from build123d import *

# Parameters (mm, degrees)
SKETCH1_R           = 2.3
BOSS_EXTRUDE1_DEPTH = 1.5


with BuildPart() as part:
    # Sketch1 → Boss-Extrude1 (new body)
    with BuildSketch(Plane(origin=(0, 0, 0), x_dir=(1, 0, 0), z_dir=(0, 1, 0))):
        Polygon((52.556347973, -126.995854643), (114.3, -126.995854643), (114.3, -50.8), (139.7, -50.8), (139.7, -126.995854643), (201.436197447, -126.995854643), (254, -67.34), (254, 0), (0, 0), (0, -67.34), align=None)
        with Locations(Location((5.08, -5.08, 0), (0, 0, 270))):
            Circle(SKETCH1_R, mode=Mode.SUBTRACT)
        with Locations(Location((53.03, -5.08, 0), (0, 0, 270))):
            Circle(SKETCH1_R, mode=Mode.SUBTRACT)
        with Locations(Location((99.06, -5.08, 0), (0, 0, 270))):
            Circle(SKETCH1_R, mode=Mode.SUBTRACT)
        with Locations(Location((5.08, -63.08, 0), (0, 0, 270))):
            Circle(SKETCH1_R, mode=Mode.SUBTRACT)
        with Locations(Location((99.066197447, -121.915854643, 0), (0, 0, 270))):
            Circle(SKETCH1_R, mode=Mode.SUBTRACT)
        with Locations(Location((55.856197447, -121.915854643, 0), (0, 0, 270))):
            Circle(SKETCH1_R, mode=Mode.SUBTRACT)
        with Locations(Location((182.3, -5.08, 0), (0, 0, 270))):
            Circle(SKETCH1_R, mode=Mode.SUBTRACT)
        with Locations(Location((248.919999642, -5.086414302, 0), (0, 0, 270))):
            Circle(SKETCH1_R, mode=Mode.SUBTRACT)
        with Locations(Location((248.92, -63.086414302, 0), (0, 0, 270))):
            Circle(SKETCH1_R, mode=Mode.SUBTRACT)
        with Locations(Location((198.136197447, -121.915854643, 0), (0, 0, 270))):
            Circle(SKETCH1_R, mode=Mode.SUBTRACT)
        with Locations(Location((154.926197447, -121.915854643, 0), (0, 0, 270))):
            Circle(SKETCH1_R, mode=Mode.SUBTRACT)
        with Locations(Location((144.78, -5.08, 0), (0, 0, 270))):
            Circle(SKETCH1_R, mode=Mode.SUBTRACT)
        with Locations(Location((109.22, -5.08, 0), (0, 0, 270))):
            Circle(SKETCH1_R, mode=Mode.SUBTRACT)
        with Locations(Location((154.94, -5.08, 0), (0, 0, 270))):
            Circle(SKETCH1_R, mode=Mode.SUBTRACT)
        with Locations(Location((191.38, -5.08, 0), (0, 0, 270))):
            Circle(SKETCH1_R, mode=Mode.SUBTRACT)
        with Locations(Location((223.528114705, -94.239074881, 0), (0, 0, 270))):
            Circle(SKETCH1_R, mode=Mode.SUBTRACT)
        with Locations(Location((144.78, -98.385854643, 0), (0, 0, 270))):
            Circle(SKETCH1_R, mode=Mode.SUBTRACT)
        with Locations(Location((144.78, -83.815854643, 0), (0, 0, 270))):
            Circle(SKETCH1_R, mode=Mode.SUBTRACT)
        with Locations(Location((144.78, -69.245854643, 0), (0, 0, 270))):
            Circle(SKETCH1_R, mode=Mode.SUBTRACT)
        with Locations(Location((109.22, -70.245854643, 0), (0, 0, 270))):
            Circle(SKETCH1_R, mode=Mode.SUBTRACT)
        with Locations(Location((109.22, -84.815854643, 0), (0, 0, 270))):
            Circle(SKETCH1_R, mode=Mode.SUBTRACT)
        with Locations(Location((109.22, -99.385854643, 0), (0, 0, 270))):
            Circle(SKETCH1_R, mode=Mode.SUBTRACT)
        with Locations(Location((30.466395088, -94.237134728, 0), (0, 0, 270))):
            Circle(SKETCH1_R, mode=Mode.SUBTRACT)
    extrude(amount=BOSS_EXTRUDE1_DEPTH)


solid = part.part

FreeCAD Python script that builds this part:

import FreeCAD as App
import Part
import Sketcher
from FreeCAD import Vector


def add_polygon(sketch, points):
    """Adds a closed chain of lines whose ends are joined by coincident constraints."""
    first, n = sketch.GeometryCount, len(points)
    for a, b in zip(points, points[1:] + points[:1]):
        sketch.addGeometry(Part.LineSegment(App.Vector(*a, 0), App.Vector(*b, 0)), False)
    for i in range(n):
        sketch.addConstraint(Sketcher.Constraint("Coincident", first + i, 2, first + (i + 1) % n, 1))

doc = App.newDocument("Part")
body = doc.addObject("PartDesign::Body", "Body")

# Sketch on XZ plane
sketch1 = doc.addObject("Sketcher::SketchObject", "Sketch")
body.addObject(sketch1)
sketch1.AttachmentSupport = (doc.XZ_Plane, [""])
sketch1.MapMode = "FlatFace"
add_polygon(sketch1, [(52.6, 127), (114.3, 127), (114.3, 50.8), (139.7, 50.8), (139.7, 127), (201.4, 127), (254, 67.3), (254, 0), (0, 0), (0, 67.3)])  # lines 0-9
sketch1.addGeometry(Part.Circle(Vector(55.9, 121.9, 0), Vector(0, 0, 1), 2.3), False)  # 10
sketch1.addGeometry(Part.Circle(Vector(30.5, 94.2, 0), Vector(0, 0, 1), 2.3), False)  # 11
sketch1.addGeometry(Part.Circle(Vector(99.1, 121.9, 0), Vector(0, 0, 1), 2.3), False)  # 12
sketch1.addGeometry(Part.Circle(Vector(109.2, 99.4, 0), Vector(0, 0, 1), 2.3), False)  # 13
sketch1.addGeometry(Part.Circle(Vector(109.2, 84.8, 0), Vector(0, 0, 1), 2.3), False)  # 14
sketch1.addGeometry(Part.Circle(Vector(109.2, 70.2, 0), Vector(0, 0, 1), 2.3), False)  # 15
sketch1.addGeometry(Part.Circle(Vector(154.9, 121.9, 0), Vector(0, 0, 1), 2.3), False)  # 16
sketch1.addGeometry(Part.Circle(Vector(144.8, 98.4, 0), Vector(0, 0, 1), 2.3), False)  # 17
sketch1.addGeometry(Part.Circle(Vector(198.1, 121.9, 0), Vector(0, 0, 1), 2.3), False)  # 18
sketch1.addGeometry(Part.Circle(Vector(223.5, 94.2, 0), Vector(0, 0, 1), 2.3), False)  # 19
sketch1.addGeometry(Part.Circle(Vector(144.8, 83.8, 0), Vector(0, 0, 1), 2.3), False)  # 20
sketch1.addGeometry(Part.Circle(Vector(144.8, 69.2, 0), Vector(0, 0, 1), 2.3), False)  # 21
sketch1.addGeometry(Part.Circle(Vector(5.1, 63.1, 0), Vector(0, 0, 1), 2.3), False)  # 22
sketch1.addGeometry(Part.Circle(Vector(5.1, 5.1, 0), Vector(0, 0, 1), 2.3), False)  # 23
sketch1.addGeometry(Part.Circle(Vector(53, 5.1, 0), Vector(0, 0, 1), 2.3), False)  # 24
sketch1.addGeometry(Part.Circle(Vector(99.1, 5.1, 0), Vector(0, 0, 1), 2.3), False)  # 25
sketch1.addGeometry(Part.Circle(Vector(109.2, 5.1, 0), Vector(0, 0, 1), 2.3), False)  # 26
sketch1.addGeometry(Part.Circle(Vector(248.9, 63.1, 0), Vector(0, 0, 1), 2.3), False)  # 27
sketch1.addGeometry(Part.Circle(Vector(144.8, 5.1, 0), Vector(0, 0, 1), 2.3), False)  # 28
sketch1.addGeometry(Part.Circle(Vector(154.9, 5.1, 0), Vector(0, 0, 1), 2.3), False)  # 29
sketch1.addGeometry(Part.Circle(Vector(182.3, 5.1, 0), Vector(0, 0, 1), 2.3), False)  # 30
sketch1.addGeometry(Part.Circle(Vector(191.4, 5.1, 0), Vector(0, 0, 1), 2.3), False)  # 31
sketch1.addGeometry(Part.Circle(Vector(248.9, 5.1, 0), Vector(0, 0, 1), 2.3), False)  # 32
sketch1.addConstraint([
    Sketcher.Constraint("Horizontal", 0),
    Sketcher.Constraint("Vertical", 1),
    Sketcher.Constraint("Horizontal", 2),
    Sketcher.Constraint("Vertical", 3),
    Sketcher.Constraint("Horizontal", 4),
    Sketcher.Constraint("Vertical", 6),
    Sketcher.Constraint("Horizontal", 7),
    Sketcher.Constraint("Vertical", 8),
    Sketcher.Constraint("Coincident", 7, 2, -1, 1),
    Sketcher.Constraint("Equal", 10, 11),
    Sketcher.Constraint("Equal", 11, 12),
    Sketcher.Constraint("Equal", 12, 13),
    Sketcher.Constraint("Equal", 13, 14),
    Sketcher.Constraint("Equal", 14, 15),
    Sketcher.Constraint("Equal", 15, 16),
    Sketcher.Constraint("Equal", 16, 17),
    Sketcher.Constraint("Equal", 17, 18),
    Sketcher.Constraint("Equal", 18, 19),
    Sketcher.Constraint("Equal", 19, 20),
    Sketcher.Constraint("Equal", 20, 21),
    Sketcher.Constraint("Equal", 21, 22),
    Sketcher.Constraint("Equal", 22, 23),
    Sketcher.Constraint("Equal", 23, 24),
    Sketcher.Constraint("Equal", 24, 25),
    Sketcher.Constraint("Equal", 25, 26),
    Sketcher.Constraint("Equal", 26, 27),
    Sketcher.Constraint("Equal", 27, 28),
    Sketcher.Constraint("Equal", 28, 29),
    Sketcher.Constraint("Equal", 29, 30),
    Sketcher.Constraint("Equal", 30, 31),
    Sketcher.Constraint("Equal", 31, 32),
    Sketcher.Constraint("Horizontal", 10, 3, 12, 3),
    Sketcher.Constraint("Horizontal", 12, 3, 16, 3),
    Sketcher.Constraint("Horizontal", 16, 3, 18, 3),
    Sketcher.Constraint("Horizontal", 23, 3, 24, 3),
    Sketcher.Constraint("Horizontal", 24, 3, 25, 3),
    Sketcher.Constraint("Horizontal", 25, 3, 26, 3),
    Sketcher.Constraint("Horizontal", 26, 3, 28, 3),
    Sketcher.Constraint("Horizontal", 28, 3, 29, 3),
    Sketcher.Constraint("Horizontal", 29, 3, 30, 3),
    Sketcher.Constraint("Horizontal", 30, 3, 31, 3),
    Sketcher.Constraint("Horizontal", 0, 2, 3, 2),
    Sketcher.Constraint("Horizontal", 5, 2, 8, 2),
    Sketcher.Constraint("Vertical", 13, 3, 14, 3),
    Sketcher.Constraint("Vertical", 14, 3, 15, 3),
    Sketcher.Constraint("Vertical", 17, 3, 20, 3),
    Sketcher.Constraint("Vertical", 20, 3, 21, 3),
    Sketcher.Constraint("Vertical", 22, 3, 23, 3),
    Sketcher.Constraint("Vertical", 15, 3, 26, 3),
    Sketcher.Constraint("Vertical", 21, 3, 28, 3),
    Sketcher.Constraint("Vertical", 27, 3, 32, 3),
    Sketcher.Constraint("Diameter", 10, 4.6),
    Sketcher.Constraint("DistanceX", 7, 2, 7, 1, 254.0),
    Sketcher.Constraint("DistanceX", 2, 1, 2, 2, 25.4),
    Sketcher.Constraint("DistanceY", 17, 3, 13, 3, 1.0),
    Sketcher.Constraint("DistanceY", 20, 3, 14, 3, 1.0),
    Sketcher.Constraint("DistanceY", 21, 3, 15, 3, 1.0),
    Sketcher.Constraint("DistanceY", 23, 3, 22, 3, 58.0),
    Sketcher.Constraint("DistanceY", 32, 3, 27, 3, 58.0),
    Sketcher.Constraint("DistanceY", 6, 2, 6, 1, 67.34),
    Sketcher.Constraint("DistanceX", -1, 1, 30, 3, 182.3),
    Sketcher.Constraint("DistanceX", -1, 1, 0, 2, 114.3),
    Sketcher.Constraint("DistanceY", -1, 1, 1, 2, 50.8),
    Sketcher.Constraint("DistanceY", 14, 3, 12, 3, 37.1),
    Sketcher.Constraint("DistanceX", 28, 3, 31, 3, 46.6),
    Sketcher.Constraint("DistanceX", 18, 3, 4, 2, 3.3),
    Sketcher.Constraint("DistanceX", -1, 1, 13, 3, 109.22),
    Sketcher.Constraint("DistanceX", -1, 1, 17, 3, 144.78),
    Sketcher.Constraint("DistanceX", -1, 1, 22, 3, 5.08),
    Sketcher.Constraint("DistanceY", -1, 1, 22, 3, 63.08),
    Sketcher.Constraint("DistanceX", -1, 1, 24, 3, 53.03),
    Sketcher.Constraint("DistanceX", -1, 1, 25, 3, 99.06),
    Sketcher.Constraint("DistanceX", -1, 1, 27, 3, 248.92),
    Sketcher.Constraint("DistanceX", -1, 1, 29, 3, 154.94),
    Sketcher.Constraint("DistanceX", 10, 3, 12, 3, 43.21),
    Sketcher.Constraint("DistanceY", 13, 3, 12, 3, 22.53),
    Sketcher.Constraint("DistanceY", 15, 3, 14, 3, 14.57),
    Sketcher.Constraint("DistanceX", 12, 3, 16, 3, 55.86),
    Sketcher.Constraint("DistanceX", 16, 3, 18, 3, 43.21),
    Sketcher.Constraint("DistanceY", 12, 3, 0, 2, 5.08),
    Sketcher.Constraint("Distance", 9, 79.504658),
    Sketcher.Constraint("DistanceX", 0, 1, 0, 2, 61.743652),
    Sketcher.Constraint("DistanceX", 4, 1, 4, 2, 61.736197),
    Sketcher.Constraint("DistanceY", 11, 3, 10, 3, 27.67872),
    Sketcher.Constraint("DistanceY", 19, 3, 18, 3, 27.67678),
    Sketcher.Constraint("DistanceY", 27, 3, 19, 3, 31.152661),
    Sketcher.Constraint("DistanceX", -1, 1, 11, 3, 30.466395),
    Sketcher.Constraint("DistanceX", -1, 1, 19, 3, 223.528115),
])
pad1 = doc.addObject("PartDesign::Pad", "Pad")
body.addObject(pad1)
pad1.Profile = sketch1
pad1.Length = 1.5
pad1.Reversed = True

doc.recompute()
